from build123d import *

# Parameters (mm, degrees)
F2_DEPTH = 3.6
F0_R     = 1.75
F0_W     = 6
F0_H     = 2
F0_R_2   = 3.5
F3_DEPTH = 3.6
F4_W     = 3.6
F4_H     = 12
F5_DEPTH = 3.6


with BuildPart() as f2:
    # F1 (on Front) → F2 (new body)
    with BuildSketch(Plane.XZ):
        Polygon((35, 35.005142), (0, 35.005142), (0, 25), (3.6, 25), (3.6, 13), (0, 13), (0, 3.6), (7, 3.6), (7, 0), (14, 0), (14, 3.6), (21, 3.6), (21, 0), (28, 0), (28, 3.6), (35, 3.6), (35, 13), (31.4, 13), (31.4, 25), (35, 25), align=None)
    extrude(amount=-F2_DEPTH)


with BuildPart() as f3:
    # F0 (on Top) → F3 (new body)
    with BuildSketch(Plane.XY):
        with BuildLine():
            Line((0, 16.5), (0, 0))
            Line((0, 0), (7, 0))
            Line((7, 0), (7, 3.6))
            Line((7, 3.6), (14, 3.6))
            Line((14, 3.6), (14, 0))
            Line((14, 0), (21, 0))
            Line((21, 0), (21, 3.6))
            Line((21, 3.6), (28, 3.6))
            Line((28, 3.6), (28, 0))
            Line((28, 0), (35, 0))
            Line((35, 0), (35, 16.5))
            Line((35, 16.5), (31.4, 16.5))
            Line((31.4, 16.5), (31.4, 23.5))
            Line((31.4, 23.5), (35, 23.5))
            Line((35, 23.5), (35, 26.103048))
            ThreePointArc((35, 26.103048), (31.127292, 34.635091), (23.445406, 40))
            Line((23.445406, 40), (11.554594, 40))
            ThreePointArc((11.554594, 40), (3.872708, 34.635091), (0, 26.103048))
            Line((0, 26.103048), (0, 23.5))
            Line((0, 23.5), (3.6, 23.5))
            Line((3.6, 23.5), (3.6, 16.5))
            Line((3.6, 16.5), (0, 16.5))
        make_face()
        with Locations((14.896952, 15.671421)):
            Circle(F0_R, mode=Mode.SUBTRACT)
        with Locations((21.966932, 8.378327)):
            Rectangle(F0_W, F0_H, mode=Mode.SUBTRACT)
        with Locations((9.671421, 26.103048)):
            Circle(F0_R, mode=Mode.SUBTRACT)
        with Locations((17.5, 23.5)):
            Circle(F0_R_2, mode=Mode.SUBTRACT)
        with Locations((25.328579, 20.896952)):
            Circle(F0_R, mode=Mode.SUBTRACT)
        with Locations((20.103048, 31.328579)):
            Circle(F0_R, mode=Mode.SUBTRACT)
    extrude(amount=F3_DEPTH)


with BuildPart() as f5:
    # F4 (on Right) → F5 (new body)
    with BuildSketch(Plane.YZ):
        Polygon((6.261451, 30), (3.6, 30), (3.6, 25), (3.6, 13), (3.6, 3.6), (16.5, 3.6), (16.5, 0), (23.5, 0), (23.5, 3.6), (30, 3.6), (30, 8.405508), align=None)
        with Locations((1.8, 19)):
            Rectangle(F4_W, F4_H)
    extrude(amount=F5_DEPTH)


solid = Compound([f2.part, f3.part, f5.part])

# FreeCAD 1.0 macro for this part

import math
import FreeCAD as App
import Part
import Sketcher

doc = App.newDocument("Part")
body = doc.addObject("PartDesign::Body", "Body")

# Sketch on XZ plane
sketch1 = body.newObject("Sketcher::SketchObject", "Sketch")
sketch1.AttachmentSupport = (doc.getObject("XZ_Plane"), [""])
sketch1.MapMode = "FlatFace"
sketch1.addGeometry([
    Part.LineSegment(App.Vector(35, 35.005142, 0), App.Vector(0, 35.005142, 0)),  # 0
    Part.LineSegment(App.Vector(0, 35.005142, 0), App.Vector(0, 25, 0)),  # 1
    Part.LineSegment(App.Vector(0, 25, 0), App.Vector(3.6, 25, 0)),  # 2
    Part.LineSegment(App.Vector(3.6, 25, 0), App.Vector(3.6, 13, 0)),  # 3
    Part.LineSegment(App.Vector(3.6, 13, 0), App.Vector(0, 13, 0)),  # 4
    Part.LineSegment(App.Vector(0, 13, 0), App.Vector(0, 3.6, 0)),  # 5
    Part.LineSegment(App.Vector(0, 3.6, 0), App.Vector(7, 3.6, 0)),  # 6
    Part.LineSegment(App.Vector(7, 3.6, 0), App.Vector(7, 0, 0)),  # 7
    Part.LineSegment(App.Vector(7, 0, 0), App.Vector(14, 0, 0)),  # 8
    Part.LineSegment(App.Vector(14, 0, 0), App.Vector(14, 3.6, 0)),  # 9
    Part.LineSegment(App.Vector(14, 3.6, 0), App.Vector(21, 3.6, 0)),  # 10
    Part.LineSegment(App.Vector(21, 3.6, 0), App.Vector(21, 0, 0)),  # 11
    Part.LineSegment(App.Vector(21, 0, 0), App.Vector(28, 0, 0)),  # 12
    Part.LineSegment(App.Vector(28, 0, 0), App.Vector(28, 3.6, 0)),  # 13
    Part.LineSegment(App.Vector(28, 3.6, 0), App.Vector(35, 3.6, 0)),  # 14
    Part.LineSegment(App.Vector(35, 3.6, 0), App.Vector(35, 13, 0)),  # 15
    Part.LineSegment(App.Vector(35, 13, 0), App.Vector(31.4, 13, 0)),  # 16
    Part.LineSegment(App.Vector(31.4, 13, 0), App.Vector(31.4, 25, 0)),  # 17
    Part.LineSegment(App.Vector(31.4, 25, 0), App.Vector(35, 25, 0)),  # 18
    Part.LineSegment(App.Vector(35, 25, 0), App.Vector(35, 35.005142, 0)),  # 19
], False)
sketch1.addConstraint([
    Sketcher.Constraint("Coincident", 0, 2, 1, 1),
    Sketcher.Constraint("Coincident", 1, 2, 2, 1),
    Sketcher.Constraint("Coincident", 2, 2, 3, 1),
    Sketcher.Constraint("Coincident", 3, 2, 4, 1),
    Sketcher.Constraint("Coincident", 4, 2, 5, 1),
    Sketcher.Constraint("Coincident", 5, 2, 6, 1),
    Sketcher.Constraint("Coincident", 6, 2, 7, 1),
    Sketcher.Constraint("Coincident", 7, 2, 8, 1),
    Sketcher.Constraint("Coincident", 8, 2, 9, 1),
    Sketcher.Constraint("Coincident", 9, 2, 10, 1),
    Sketcher.Constraint("Coincident", 10, 2, 11, 1),
    Sketcher.Constraint("Coincident", 11, 2, 12, 1),
    Sketcher.Constraint("Coincident", 12, 2, 13, 1),
    Sketcher.Constraint("Coincident", 13, 2, 14, 1),
    Sketcher.Constraint("Coincident", 14, 2, 15, 1),
    Sketcher.Constraint("Coincident", 15, 2, 16, 1),
    Sketcher.Constraint("Coincident", 16, 2, 17, 1),
    Sketcher.Constraint("Coincident", 17, 2, 18, 1),
    Sketcher.Constraint("Coincident", 18, 2, 19, 1),
    Sketcher.Constraint("Coincident", 19, 2, 0, 1),
    Sketcher.Constraint("Horizontal", 0),
    Sketcher.Constraint("Vertical", 1),
    Sketcher.Constraint("Horizontal", 2),
    Sketcher.Constraint("Vertical", 3),
    Sketcher.Constraint("Horizontal", 4),
    Sketcher.Constraint("Vertical", 5),
    Sketcher.Constraint("Horizontal", 6),
    Sketcher.Constraint("Vertical", 7),
    Sketcher.Constraint("Horizontal", 8),
    Sketcher.Constraint("Vertical", 9),
    Sketcher.Constraint("Horizontal", 10),
    Sketcher.Constraint("Vertical", 11),
    Sketcher.Constraint("Horizontal", 12),
    Sketcher.Constraint("Vertical", 13),
    Sketcher.Constraint("Horizontal", 14),
    Sketcher.Constraint("Vertical", 15),
    Sketcher.Constraint("Horizontal", 16),
    Sketcher.Constraint("Vertical", 17),
    Sketcher.Constraint("Horizontal", 18),
    Sketcher.Constraint("Vertical", 19),
    Sketcher.Constraint("PointOnObject", 0, 2, -2),
    Sketcher.Constraint("PointOnObject", 4, 2, -2),
    Sketcher.Constraint("PointOnObject", 7, 2, -1),
    Sketcher.Constraint("PointOnObject", 11, 2, -1),
    Sketcher.Constraint("Horizontal", 6, 2, 9, 2),
    Sketcher.Constraint("Horizontal", 10, 2, 13, 2),
    Sketcher.Constraint("Horizontal", 4, 2, 15, 2),
    Sketcher.Constraint("Horizontal", 2, 2, 17, 2),
    Sketcher.Constraint("Vertical", 15, 2, 18, 2),
    Sketcher.Constraint("Equal", 6, 8),
    Sketcher.Constraint("Equal", 8, 10),
    Sketcher.Constraint("Equal", 10, 12),
    Sketcher.Constraint("Equal", 12, 14),
    Sketcher.Constraint("Equal", 4, 16),
    Sketcher.Constraint("Equal", 18, 7),
    Sketcher.Constraint("DistanceX", 0, 2, 0, 1, 35.0),
    Sketcher.Constraint("DistanceY", 3, 2, 3, 1, 12.0),
    Sketcher.Constraint("DistanceX", 2, 1, 2, 2, 3.6),
    Sketcher.Constraint("DistanceY", 5, 2, 5, 1, 9.4),
    Sketcher.Constraint("DistanceY", 1, 2, 1, 1, 10.005142),
])
pad1 = body.newObject("PartDesign::Pad", "Pad")
pad1.Profile = sketch1
pad1.Length = 3.6
pad1.Reversed = True
body2 = doc.addObject("PartDesign::Body", "Body001")

# Sketch on XY plane
sketch2 = body2.newObject("Sketcher::SketchObject", "Sketch001")
sketch2.AttachmentSupport = (doc.getObject("XY_Plane001"), [""])
sketch2.MapMode = "FlatFace"
sketch2.addGeometry([
    Part.LineSegment(App.Vector(0, 16.5, 0), App.Vector(0, 0, 0)),  # 0
    Part.LineSegment(App.Vector(0, 0, 0), App.Vector(7, 0, 0)),  # 1
    Part.LineSegment(App.Vector(7, 0, 0), App.Vector(7, 3.6, 0)),  # 2
    Part.LineSegment(App.Vector(7, 3.6, 0), App.Vector(14, 3.6, 0)),  # 3
    Part.LineSegment(App.Vector(14, 3.6, 0), App.Vector(14, 0, 0)),  # 4
    Part.LineSegment(App.Vector(14, 0, 0), App.Vector(21, 0, 0)),  # 5
    Part.LineSegment(App.Vector(21, 0, 0), App.Vector(21, 3.6, 0)),  # 6
    Part.LineSegment(App.Vector(21, 3.6, 0), App.Vector(28, 3.6, 0)),  # 7
    Part.LineSegment(App.Vector(28, 3.6, 0), App.Vector(28, 0, 0)),  # 8
    Part.LineSegment(App.Vector(28, 0, 0), App.Vector(35, 0, 0)),  # 9
    Part.LineSegment(App.Vector(35, 0, 0), App.Vector(35, 16.5, 0)),  # 10
    Part.LineSegment(App.Vector(35, 16.5, 0), App.Vector(31.4, 16.5, 0)),  # 11
    Part.LineSegment(App.Vector(31.4, 16.5, 0), App.Vector(31.4, 23.5, 0)),  # 12
    Part.LineSegment(App.Vector(31.4, 23.5, 0), App.Vector(35, 23.5, 0)),  # 13
    Part.LineSegment(App.Vector(35, 23.5, 0), App.Vector(35, 26.103048, 0)),  # 14
    Part.ArcOfCircle(Part.Circle(App.Vector(17.500001, 23.304706, 0), App.Vector(0, 0, 1), 17.722321), math.radians(9.084984), math.radians(70.398544)),  # 15
    Part.LineSegment(App.Vector(23.445406, 40, 0), App.Vector(11.554594, 40, 0)),  # 16
    Part.ArcOfCircle(Part.Circle(App.Vector(17.499999, 23.304706, 0), App.Vector(0, 0, 1), 17.722321), math.radians(109.601456), math.radians(170.915016)),  # 17
    Part.LineSegment(App.Vector(0, 26.103048, 0), App.Vector(0, 23.5, 0)),  # 18
    Part.LineSegment(App.Vector(0, 23.5, 0), App.Vector(3.6, 23.5, 0)),  # 19
    Part.LineSegment(App.Vector(3.6, 23.5, 0), App.Vector(3.6, 16.5, 0)),  # 20
    Part.LineSegment(App.Vector(3.6, 16.5, 0), App.Vector(0, 16.5, 0)),  # 21
    Part.Circle(App.Vector(14.896952, 15.671421, 0), App.Vector(0, 0, 1), 1.75),  # 22
    Part.LineSegment(App.Vector(24.966932, 7.378327, 0), App.Vector(18.966932, 7.378327, 0)),  # 23
    Part.LineSegment(App.Vector(18.966932, 7.378327, 0), App.Vector(18.966932, 9.378327, 0)),  # 24
    Part.LineSegment(App.Vector(18.966932, 9.378327, 0), App.Vector(24.966932, 9.378327, 0)),  # 25
    Part.LineSegment(App.Vector(24.966932, 9.378327, 0), App.Vector(24.966932, 7.378327, 0)),  # 26
    Part.Circle(App.Vector(9.671421, 26.103048, 0), App.Vector(0, 0, 1), 1.75),  # 27
    Part.Circle(App.Vector(17.5, 23.5, 0), App.Vector(0, 0, 1), 3.5),  # 28
    Part.Circle(App.Vector(25.328579, 20.896952, 0), App.Vector(0, 0, 1), 1.75),  # 29
    Part.Circle(App.Vector(20.103048, 31.328579, 0), App.Vector(0, 0, 1), 1.75),  # 30
], False)
sketch2.addConstraint([
    Sketcher.Constraint("Coincident", 0, 2, 1, 1),
    Sketcher.Constraint("Coincident", 1, 2, 2, 1),
    Sketcher.Constraint("Coincident", 2, 2, 3, 1),
    Sketcher.Constraint("Coincident", 3, 2, 4, 1),
    Sketcher.Constraint("Coincident", 4, 2, 5, 1),
    Sketcher.Constraint("Coincident", 5, 2, 6, 1),
    Sketcher.Constraint("Coincident", 6, 2, 7, 1),
    Sketcher.Constraint("Coincident", 7, 2, 8, 1),
    Sketcher.Constraint("Coincident", 8, 2, 9, 1),
    Sketcher.Constraint("Coincident", 9, 2, 10, 1),
    Sketcher.Constraint("Coincident", 10, 2, 11, 1),
    Sketcher.Constraint("Coincident", 11, 2, 12, 1),
    Sketcher.Constraint("Coincident", 12, 2, 13, 1),
    Sketcher.Constraint("Coincident", 13, 2, 14, 1),
    Sketcher.Constraint("Coincident", 14, 2, 15, 1),
    Sketcher.Constraint("Coincident", 15, 2, 16, 1),
    Sketcher.Constraint("Coincident", 16, 2, 17, 1),
    Sketcher.Constraint("Coincident", 17, 2, 18, 1),
    Sketcher.Constraint("Coincident", 18, 2, 19, 1),
    Sketcher.Constraint("Coincident", 19, 2, 20, 1),
    Sketcher.Constraint("Coincident", 20, 2, 21, 1),
    Sketcher.Constraint("Coincident", 21, 2, 0, 1),
    Sketcher.Constraint("Coincident", 23, 2, 24, 1),
    Sketcher.Constraint("Coincident", 24, 2, 25, 1),
    Sketcher.Constraint("Coincident", 25, 2, 26, 1),
    Sketcher.Constraint("Coincident", 26, 2, 23, 1),
    Sketcher.Constraint("Vertical", 0),
    Sketcher.Constraint("Horizontal", 1),
    Sketcher.Constraint("Vertical", 2),
    Sketcher.Constraint("Horizontal", 3),
    Sketcher.Constraint("Vertical", 4),
    Sketcher.Constraint("Horizontal", 5),
    Sketcher.Constraint("Vertical", 6),
    Sketcher.Constraint("Horizontal", 7),
    Sketcher.Constraint("Vertical", 8),
    Sketcher.Constraint("Horizontal", 9),
    Sketcher.Constraint("Vertical", 10),
    Sketcher.Constraint("Horizontal", 11),
    Sketcher.Constraint("Vertical", 12),
    Sketcher.Constraint("Horizontal", 13),
    Sketcher.Constraint("Vertical", 14),
    Sketcher.Constraint("Horizontal", 16),
    Sketcher.Constraint("Vertical", 18),
    Sketcher.Constraint("Horizontal", 19),
    Sketcher.Constraint("Vertical", 20),
    Sketcher.Constraint("Horizontal", 21),
    Sketcher.Constraint("Horizontal", 23),
    Sketcher.Constraint("Vertical", 24),
    Sketcher.Constraint("Horizontal", 25),
    Sketcher.Constraint("Vertical", 26),
    Sketcher.Constraint("Coincident", 0, 2, -1, 1),
    Sketcher.Constraint("Coincident", 17, 3, 15, 3),
    Sketcher.Constraint("Equal", 15, 17),
    Sketcher.Constraint("Equal", 22, 27),
    Sketcher.Constraint("Equal", 27, 29),
    Sketcher.Constraint("Equal", 29, 30),
    Sketcher.Constraint("PointOnObject", 4, 2, -1),
    Sketcher.Constraint("PointOnObject", 8, 2, -1),
    Sketcher.Constraint("PointOnObject", 17, 2, -2),
    Sketcher.Constraint("Horizontal", 3, 2, 6, 2),
    Sketcher.Constraint("Horizontal", 28, 3, 12, 2),
    Sketcher.Constraint("Horizontal", 27, 3, 14, 2),
    Sketcher.Constraint("Horizontal", 14, 2, 17, 2),
    Sketcher.Constraint("Horizontal", 13, 2, 18, 2),
    Sketcher.Constraint("Horizontal", 11, 2, 20, 2),
    Sketcher.Constraint("Vertical", 17, 3, 28, 3),
    Sketcher.Constraint("Vertical", 10, 2, 13, 2),
    Sketcher.Constraint("Equal", 1, 3),
    Sketcher.Constraint("Equal", 3, 5),
    Sketcher.Constraint("Equal", 5, 7),
    Sketcher.Constraint("Equal", 7, 9),
    Sketcher.Constraint("Equal", 13, 19),
    Sketcher.Constraint("Equal", 21, 2),
    Sketcher.Constraint("Equal", 9, 12),
    Sketcher.Constraint("Diameter", 28, 7.0),
    Sketcher.Constraint("Diameter", 22, 3.5),
    Sketcher.Constraint("DistanceX", 1, 1, 1, 2, 7.0),
    Sketcher.Constraint("DistanceX", 23, 2, 23, 1, 6.0),
    Sketcher.Constraint("DistanceY", 24, 1, 24, 2, 2.0),
    Sketcher.Constraint("DistanceX", 11, 2, 11, 1, 3.6),
    Sketcher.Constraint("DistanceY", 0, 2, 0, 1, 16.5),
    Sketcher.Constraint("DistanceY", -1, 1, 15, 2, 40.0),
    Sketcher.Constraint("Radius", 15, 17.722321),
    Sketcher.Constraint("DistanceX", 16, 2, 16, 1, 11.890812),
    Sketcher.Constraint("DistanceY", -1, 1, 22, 3, 15.671421),
    Sketcher.Constraint("DistanceX", -1, 1, 27, 3, 9.671421),
    Sketcher.Constraint("DistanceX", -1, 1, 29, 3, 25.328579),
    Sketcher.Constraint("DistanceY", -1, 1, 29, 3, 20.896952),
    Sketcher.Constraint("DistanceX", -1, 1, 30, 3, 20.103048),
    Sketcher.Constraint("DistanceY", -1, 1, 30, 3, 31.328579),
    Sketcher.Constraint("DistanceX", -1, 1, 23, 2, 18.966932),
    Sketcher.Constraint("DistanceX", 22, 3, 15, 3, 2.603049),
    Sketcher.Constraint("DistanceY", -1, 1, 23, 2, 7.378327),
])
pad2 = body2.newObject("PartDesign::Pad", "Pad001")
pad2.Profile = sketch2
pad2.Length = 3.6
body3 = doc.addObject("PartDesign::Body", "Body002")

# Sketch on YZ plane
sketch3 = body3.newObject("Sketcher::SketchObject", "Sketch002")
sketch3.AttachmentSupport = (doc.getObject("YZ_Plane002"), [""])
sketch3.MapMode = "FlatFace"
sketch3.addGeometry([
    Part.LineSegment(App.Vector(6.261451, 30, 0), App.Vector(3.6, 30, 0)),  # 0
    Part.LineSegment(App.Vector(3.6, 30, 0), App.Vector(3.6, 25, 0)),  # 1
    Part.LineSegment(App.Vector(3.6, 25, 0), App.Vector(0, 25, 0)),  # 2
    Part.LineSegment(App.Vector(0, 25, 0), App.Vector(0, 13, 0)),  # 3
    Part.LineSegment(App.Vector(0, 13, 0), App.Vector(3.6, 13, 0)),  # 4
    Part.LineSegment(App.Vector(3.6, 13, 0), App.Vector(3.6, 3.6, 0)),  # 5
    Part.LineSegment(App.Vector(3.6, 3.6, 0), App.Vector(16.5, 3.6, 0)),  # 6
    Part.LineSegment(App.Vector(16.5, 3.6, 0), App.Vector(16.5, 0, 0)),  # 7
    Part.LineSegment(App.Vector(16.5, 0, 0), App.Vector(23.5, 0, 0)),  # 8
    Part.LineSegment(App.Vector(23.5, 0, 0), App.Vector(23.5, 3.6, 0)),  # 9
    Part.LineSegment(App.Vector(23.5, 3.6, 0), App.Vector(30, 3.6, 0)),  # 10
    Part.LineSegment(App.Vector(30, 3.6, 0), App.Vector(30, 8.405508, 0)),  # 11
    Part.LineSegment(App.Vector(30, 8.405508, 0), App.Vector(6.261451, 30, 0)),  # 12
], False)
sketch3.addConstraint([
    Sketcher.Constraint("Coincident", 0, 2, 1, 1),
    Sketcher.Constraint("Coincident", 1, 2, 2, 1),
    Sketcher.Constraint("Coincident", 2, 2, 3, 1),
    Sketcher.Constraint("Coincident", 3, 2, 4, 1),
    Sketcher.Constraint("Coincident", 4, 2, 5, 1),
    Sketcher.Constraint("Coincident", 5, 2, 6, 1),
    Sketcher.Constraint("Coincident", 6, 2, 7, 1),
    Sketcher.Constraint("Coincident", 7, 2, 8, 1),
    Sketcher.Constraint("Coincident", 8, 2, 9, 1),
    Sketcher.Constraint("Coincident", 9, 2, 10, 1),
    Sketcher.Constraint("Coincident", 10, 2, 11, 1),
    Sketcher.Constraint("Coincident", 11, 2, 12, 1),
    Sketcher.Constraint("Coincident", 12, 2, 0, 1),
    Sketcher.Constraint("Horizontal", 0),
    Sketcher.Constraint("Vertical", 1),
    Sketcher.Constraint("Horizontal", 2),
    Sketcher.Constraint("Vertical", 3),
    Sketcher.Constraint("Horizontal", 4),
    Sketcher.Constraint("Vertical", 5),
    Sketcher.Constraint("Horizontal", 6),
    Sketcher.Constraint("Vertical", 7),
    Sketcher.Constraint("Horizontal", 8),
    Sketcher.Constraint("Vertical", 9),
    Sketcher.Constraint("Horizontal", 10),
    Sketcher.Constraint("Vertical", 11),
    Sketcher.Constraint("PointOnObject", 2, 2, -2),
    Sketcher.Constraint("PointOnObject", 7, 2, -1),
    Sketcher.Constraint("Horizontal", 6, 2, 9, 2),
    Sketcher.Constraint("Vertical", 1, 2, 4, 2),
    Sketcher.Constraint("Equal", 4, 7),
    Sketcher.Constraint("DistanceX", 8, 1, 8, 2, 7.0),
    Sketcher.Constraint("DistanceY", 1, 2, 1, 1, 5.0),
    Sketcher.Constraint("DistanceY", 3, 2, 3, 1, 12.0),
    Sketcher.Constraint("DistanceX", 2, 2, 2, 1, 3.6),
    Sketcher.Constraint("DistanceX", 6, 1, 6, 2, 12.9),
    Sketcher.Constraint("DistanceX", 10, 1, 10, 2, 6.5),
    Sketcher.Constraint("DistanceY", 5, 2, 5, 1, 9.4),
    Sketcher.Constraint("DistanceX", 0, 2, 0, 1, 2.661451),
    Sketcher.Constraint("DistanceY", 11, 1, 11, 2, 4.805508),
])
pad3 = body3.newObject("PartDesign::Pad", "Pad002")
pad3.Profile = sketch3
pad3.Length = 3.6

doc.recompute()
